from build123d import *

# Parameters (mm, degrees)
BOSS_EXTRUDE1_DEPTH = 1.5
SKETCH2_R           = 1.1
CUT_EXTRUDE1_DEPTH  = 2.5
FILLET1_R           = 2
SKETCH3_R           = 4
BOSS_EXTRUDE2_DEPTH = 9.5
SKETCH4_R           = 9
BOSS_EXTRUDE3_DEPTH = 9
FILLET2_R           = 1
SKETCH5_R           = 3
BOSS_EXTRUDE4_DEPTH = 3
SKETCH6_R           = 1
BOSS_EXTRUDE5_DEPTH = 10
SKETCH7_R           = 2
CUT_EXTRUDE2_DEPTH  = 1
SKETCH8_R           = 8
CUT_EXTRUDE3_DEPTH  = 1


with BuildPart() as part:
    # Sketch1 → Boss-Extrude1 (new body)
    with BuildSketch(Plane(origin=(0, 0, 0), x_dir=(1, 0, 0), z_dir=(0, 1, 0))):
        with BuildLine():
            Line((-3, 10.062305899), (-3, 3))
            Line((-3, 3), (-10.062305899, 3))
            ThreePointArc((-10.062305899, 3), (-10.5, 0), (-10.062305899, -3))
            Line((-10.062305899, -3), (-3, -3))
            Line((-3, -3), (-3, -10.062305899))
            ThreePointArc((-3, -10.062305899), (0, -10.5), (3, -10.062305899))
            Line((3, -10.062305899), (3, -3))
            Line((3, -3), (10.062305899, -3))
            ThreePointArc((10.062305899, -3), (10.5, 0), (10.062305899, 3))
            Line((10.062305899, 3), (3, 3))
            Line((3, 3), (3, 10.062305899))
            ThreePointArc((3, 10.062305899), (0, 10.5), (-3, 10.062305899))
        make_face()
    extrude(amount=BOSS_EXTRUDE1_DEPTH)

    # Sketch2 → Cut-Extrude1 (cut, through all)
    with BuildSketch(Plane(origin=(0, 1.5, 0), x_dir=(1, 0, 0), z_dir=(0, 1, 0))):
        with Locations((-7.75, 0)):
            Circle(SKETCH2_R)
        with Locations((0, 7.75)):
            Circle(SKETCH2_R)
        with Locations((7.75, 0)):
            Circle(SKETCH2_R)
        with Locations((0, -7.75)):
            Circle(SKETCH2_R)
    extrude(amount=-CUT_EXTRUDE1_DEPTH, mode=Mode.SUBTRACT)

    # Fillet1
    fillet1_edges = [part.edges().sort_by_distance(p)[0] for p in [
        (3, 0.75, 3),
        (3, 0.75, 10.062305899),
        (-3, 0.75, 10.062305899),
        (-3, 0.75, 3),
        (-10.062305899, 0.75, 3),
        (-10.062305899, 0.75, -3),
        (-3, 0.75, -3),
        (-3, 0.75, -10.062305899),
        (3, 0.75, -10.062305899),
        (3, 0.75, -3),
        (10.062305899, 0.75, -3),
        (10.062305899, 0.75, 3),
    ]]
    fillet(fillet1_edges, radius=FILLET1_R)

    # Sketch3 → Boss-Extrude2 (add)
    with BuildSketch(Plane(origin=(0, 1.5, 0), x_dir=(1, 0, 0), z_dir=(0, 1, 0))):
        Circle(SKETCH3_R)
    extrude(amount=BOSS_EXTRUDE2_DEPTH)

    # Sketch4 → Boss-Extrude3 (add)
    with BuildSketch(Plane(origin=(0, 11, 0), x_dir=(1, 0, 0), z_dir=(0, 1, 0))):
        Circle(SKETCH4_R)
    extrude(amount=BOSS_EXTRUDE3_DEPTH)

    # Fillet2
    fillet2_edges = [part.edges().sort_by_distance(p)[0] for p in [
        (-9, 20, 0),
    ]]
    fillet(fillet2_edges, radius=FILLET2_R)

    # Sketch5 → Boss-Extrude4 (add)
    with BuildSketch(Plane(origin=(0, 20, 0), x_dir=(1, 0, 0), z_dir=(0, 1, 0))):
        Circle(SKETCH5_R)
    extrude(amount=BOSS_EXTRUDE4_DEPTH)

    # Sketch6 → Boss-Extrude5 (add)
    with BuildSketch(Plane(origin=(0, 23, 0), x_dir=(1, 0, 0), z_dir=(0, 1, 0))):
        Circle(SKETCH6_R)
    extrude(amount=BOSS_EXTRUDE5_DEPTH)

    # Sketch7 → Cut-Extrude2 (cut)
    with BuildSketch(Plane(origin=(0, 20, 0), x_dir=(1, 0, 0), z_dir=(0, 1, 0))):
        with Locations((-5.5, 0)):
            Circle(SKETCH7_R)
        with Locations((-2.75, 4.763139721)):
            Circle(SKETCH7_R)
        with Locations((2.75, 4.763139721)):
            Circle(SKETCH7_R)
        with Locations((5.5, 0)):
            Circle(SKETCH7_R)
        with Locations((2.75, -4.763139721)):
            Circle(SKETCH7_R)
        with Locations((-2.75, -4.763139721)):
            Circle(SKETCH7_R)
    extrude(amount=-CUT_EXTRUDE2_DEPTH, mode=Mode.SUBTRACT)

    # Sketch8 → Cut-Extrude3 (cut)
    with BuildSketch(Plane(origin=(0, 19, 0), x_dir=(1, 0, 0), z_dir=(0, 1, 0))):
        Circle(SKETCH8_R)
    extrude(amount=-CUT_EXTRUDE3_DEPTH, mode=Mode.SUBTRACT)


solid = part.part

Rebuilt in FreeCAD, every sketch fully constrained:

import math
import FreeCAD as App
import Part
import Sketcher

V = App.Vector
Q = App.Units.Quantity


def edges_at(feature, points):
    """Names of the edges that pass closest to the given points."""
    edges = feature.Shape.Edges
    near = lambda p: min(range(len(edges)), key=lambda i: edges[i].distToShape(Part.Vertex(*p))[0])
    return sorted({f"Edge{near(p) + 1}" for p in points})

doc = App.newDocument("Part")
body = doc.addObject("PartDesign::Body", "Body")

# Sketch on XZ plane
sketch1 = doc.addObject("Sketcher::SketchObject", "Sketch")
body.addObject(sketch1)
sketch1.AttachmentSupport = (doc.XZ_Plane, [""])
sketch1.MapMode = "FlatFace"
sketch1.addGeometry([
    Part.LineSegment(V(-3, -10, 0), V(-3, -3, 0)),  # 0
    Part.LineSegment(V(-3, -3, 0), V(-10, -3, 0)),  # 1
    Part.ArcOfCircle(Part.Circle(V(0, 0, 0), V(0, 0, 1), 11), math.radians(163), math.radians(197)),  # 2
    Part.LineSegment(V(-10, 3, 0), V(-3, 3, 0)),  # 3
    Part.LineSegment(V(-3, 3, 0), V(-3, 10, 0)),  # 4
    Part.ArcOfCircle(Part.Circle(V(0, 0, 0), V(0, 0, 1), 11), math.radians(73), math.radians(107)),  # 5
    Part.LineSegment(V(3, 10, 0), V(3, 3, 0)),  # 6
    Part.LineSegment(V(3, 3, 0), V(10, 3, 0)),  # 7
    Part.ArcOfCircle(Part.Circle(V(0, 0, 0), V(0, 0, 1), 11), math.radians(-17), math.radians(17)),  # 8
    Part.LineSegment(V(10, -3, 0), V(3, -3, 0)),  # 9
    Part.LineSegment(V(3, -3, 0), V(3, -10, 0)),  # 10
    Part.ArcOfCircle(Part.Circle(V(0, 0, 0), V(0, 0, 1), 11), math.radians(-107), math.radians(-73)),  # 11
], False)
sketch1.addConstraint([
    Sketcher.Constraint("Coincident", 0, 2, 1, 1),
    Sketcher.Constraint("Coincident", 1, 2, 2, 2),
    Sketcher.Constraint("Coincident", 2, 1, 3, 1),
    Sketcher.Constraint("Coincident", 3, 2, 4, 1),
    Sketcher.Constraint("Coincident", 4, 2, 5, 2),
    Sketcher.Constraint("Coincident", 5, 1, 6, 1),
    Sketcher.Constraint("Coincident", 6, 2, 7, 1),
    Sketcher.Constraint("Coincident", 7, 2, 8, 2),
    Sketcher.Constraint("Coincident", 8, 1, 9, 1),
    Sketcher.Constraint("Coincident", 9, 2, 10, 1),
    Sketcher.Constraint("Coincident", 10, 2, 11, 2),
    Sketcher.Constraint("Coincident", 11, 1, 0, 1),
    Sketcher.Constraint("Vertical", 0),
    Sketcher.Constraint("Horizontal", 1),
    Sketcher.Constraint("Horizontal", 3),
    Sketcher.Constraint("Vertical", 4),
    Sketcher.Constraint("Vertical", 6),
    Sketcher.Constraint("Horizontal", 7),
    Sketcher.Constraint("Horizontal", 9),
    Sketcher.Constraint("Vertical", 10),
    Sketcher.Constraint("Coincident", 2, 3, -1, 1),
    Sketcher.Constraint("Coincident", 5, 3, -1, 1),
    Sketcher.Constraint("Coincident", 8, 3, -1, 1),
    Sketcher.Constraint("Coincident", 11, 3, -1, 1),
    Sketcher.Constraint("Equal", 2, 5),
    Sketcher.Constraint("Equal", 5, 8),
    Sketcher.Constraint("Equal", 8, 11),
    Sketcher.Constraint("Symmetric", 0, 2, 6, 2, -1, 1),
    Sketcher.Constraint("Symmetric", 3, 2, 9, 2, -1, 1),
    Sketcher.Constraint("Symmetric", 3, 2, 6, 2, -2),
    Sketcher.Constraint("Equal", 9, 0),
    Sketcher.Constraint("Radius", 2, Q("10.5 mm")),
    Sketcher.Constraint("DistanceX", 0, 2, -1, 1, Q("3 mm")),
])
pad1 = doc.addObject("PartDesign::Pad", "Pad")
body.addObject(pad1)
pad1.Profile = sketch1
pad1.Length = 1.5
pad1.Reversed = True

# Sketch on XZ plane
sketch2 = doc.addObject("Sketcher::SketchObject", "Sketch001")
body.addObject(sketch2)
sketch2.AttachmentSupport = (doc.XZ_Plane, [""])
sketch2.MapMode = "FlatFace"
sketch2.AttachmentOffset = App.Placement(V(0, 0, -1.5), App.Rotation())
sketch2.addGeometry([
    Part.Circle(V(-7.8, 0, 0), V(0, 0, 1), 1.1),
    Part.Circle(V(0, -7.8, 0), V(0, 0, 1), 1.1),
    Part.Circle(V(7.8, 0, 0), V(0, 0, 1), 1.1),
    Part.Circle(V(0, 7.8, 0), V(0, 0, 1), 1.1),
], False)
sketch2.addConstraint([
    Sketcher.Constraint("Equal", 0, 1),
    Sketcher.Constraint("Equal", 1, 2),
    Sketcher.Constraint("Equal", 2, 3),
    Sketcher.Constraint("Symmetric", 0, 3, 2, 3, -1, 1),
    Sketcher.Constraint("Symmetric", 1, 3, 3, 3, -1, 1),
    Sketcher.Constraint("PointOnObject", 0, 3, -1),
    Sketcher.Constraint("PointOnObject", 1, 3, -2),
    Sketcher.Constraint("Diameter", 0, Q("2.2 mm")),
    Sketcher.Constraint("DistanceX", 0, 3, 2, 3, Q("15.5 mm")),
    Sketcher.Constraint("DistanceY", 1, 3, 3, 3, Q("15.5 mm")),
])
pocket1 = doc.addObject("PartDesign::Pocket", "Pocket")
body.addObject(pocket1)
pocket1.Profile = sketch2
pocket1.Type = "ThroughAll"
pocket1.Reversed = True
doc.recompute()

fillet = doc.addObject("PartDesign::Fillet", "Fillet")
body.addObject(fillet)
fillet.Base = (pocket1, edges_at(pocket1, [
    (3, 0.75, 3),
    (3, 0.75, 10.062),
    (-3, 0.75, 10.062),
    (-3, 0.75, 3),
    (-10.062, 0.75, 3),
    (-10.062, 0.75, -3),
    (-3, 0.75, -3),
    (-3, 0.75, -10.062),
    (3, 0.75, -10.062),
    (3, 0.75, -3),
    (10.062, 0.75, -3),
    (10.062, 0.75, 3),
]))
fillet.Radius = 2

# Sketch on XZ plane
sketch3 = doc.addObject("Sketcher::SketchObject", "Sketch002")
body.addObject(sketch3)
sketch3.AttachmentSupport = (doc.XZ_Plane, [""])
sketch3.MapMode = "FlatFace"
sketch3.AttachmentOffset = App.Placement(V(0, 0, -1.5), App.Rotation())
sketch3.addGeometry(Part.Circle(V(0, 0, 0), V(0, 0, 1), 4), False)
sketch3.addConstraint([
    Sketcher.Constraint("Coincident", 0, 3, -1, 1),
    Sketcher.Constraint("Diameter", 0, Q("8 mm")),
])
pad2 = doc.addObject("PartDesign::Pad", "Pad001")
body.addObject(pad2)
pad2.Profile = sketch3
pad2.Length = 9.5
pad2.Reversed = True

# Sketch on XZ plane
sketch4 = doc.addObject("Sketcher::SketchObject", "Sketch003")
body.addObject(sketch4)
sketch4.AttachmentSupport = (doc.XZ_Plane, [""])
sketch4.MapMode = "FlatFace"
sketch4.AttachmentOffset = App.Placement(V(0, 0, -11), App.Rotation())
sketch4.addGeometry(Part.Circle(V(0, 0, 0), V(0, 0, 1), 9), False)
sketch4.addConstraint([
    Sketcher.Constraint("Coincident", 0, 3, -1, 1),
    Sketcher.Constraint("Diameter", 0, Q("18 mm")),
])
pad3 = doc.addObject("PartDesign::Pad", "Pad002")
body.addObject(pad3)
pad3.Profile = sketch4
pad3.Length = 9
pad3.Reversed = True
doc.recompute()

fillet2 = doc.addObject("PartDesign::Fillet", "Fillet001")
body.addObject(fillet2)
fillet2.Base = (pad3, edges_at(pad3, [(-9, 20, 0)]))
fillet2.Radius = 1

# Sketch on XZ plane
sketch5 = doc.addObject("Sketcher::SketchObject", "Sketch004")
body.addObject(sketch5)
sketch5.AttachmentSupport = (doc.XZ_Plane, [""])
sketch5.MapMode = "FlatFace"
sketch5.AttachmentOffset = App.Placement(V(0, 0, -20), App.Rotation())
sketch5.addGeometry(Part.Circle(V(0, 0, 0), V(0, 0, 1), 3), False)
sketch5.addConstraint([
    Sketcher.Constraint("Coincident", 0, 3, -1, 1),
    Sketcher.Constraint("Diameter", 0, Q("6 mm")),
])
pad4 = doc.addObject("PartDesign::Pad", "Pad003")
body.addObject(pad4)
pad4.Profile = sketch5
pad4.Length = 3
pad4.Reversed = True

# Sketch on XZ plane
sketch6 = doc.addObject("Sketcher::SketchObject", "Sketch005")
body.addObject(sketch6)
sketch6.AttachmentSupport = (doc.XZ_Plane, [""])
sketch6.MapMode = "FlatFace"
sketch6.AttachmentOffset = App.Placement(V(0, 0, -23), App.Rotation())
sketch6.addGeometry(Part.Circle(V(0, 0, 0), V(0, 0, 1), 1), False)
sketch6.addConstraint([
    Sketcher.Constraint("Coincident", 0, 3, -1, 1),
    Sketcher.Constraint("Diameter", 0, Q("2 mm")),
])
pad5 = doc.addObject("PartDesign::Pad", "Pad004")
body.addObject(pad5)
pad5.Profile = sketch6
pad5.Length = 10
pad5.Reversed = True

# Sketch on XZ plane
sketch7 = doc.addObject("Sketcher::SketchObject", "Sketch006")
body.addObject(sketch7)
sketch7.AttachmentSupport = (doc.XZ_Plane, [""])
sketch7.MapMode = "FlatFace"
sketch7.AttachmentOffset = App.Placement(V(0, 0, -20), App.Rotation())
sketch7.addGeometry([
    Part.Circle(V(-5.5, 0, 0), V(0, 0, 1), 2),  # 0
    Part.Circle(V(-2.8, -4.8, 0), V(0, 0, 1), 2),  # 1
    Part.Circle(V(2.8, -4.8, 0), V(0, 0, 1), 2),  # 2
    Part.Circle(V(5.5, 0, 0), V(0, 0, 1), 2),  # 3
    Part.Circle(V(2.8, 4.8, 0), V(0, 0, 1), 2),  # 4
    Part.Circle(V(-2.8, 4.8, 0), V(0, 0, 1), 2),  # 5
], False)
sketch7.addConstraint([
    Sketcher.Constraint("Equal", 0, 1),
    Sketcher.Constraint("Equal", 1, 2),
    Sketcher.Constraint("Equal", 2, 3),
    Sketcher.Constraint("Equal", 3, 4),
    Sketcher.Constraint("Equal", 4, 5),
    Sketcher.Constraint("Symmetric", 0, 3, 3, 3, -1, 1),
    Sketcher.Constraint("Symmetric", 1, 3, 4, 3, -1, 1),
    Sketcher.Constraint("Symmetric", 2, 3, 5, 3, -1, 1),
    Sketcher.Constraint("Symmetric", 1, 3, 2, 3, -2),
    Sketcher.Constraint("PointOnObject", 0, 3, -1),
    Sketcher.Constraint("Diameter", 0, Q("4 mm")),
    Sketcher.Constraint("DistanceX", 0, 3, 3, 3, Q("11 mm")),
    Sketcher.Constraint("DistanceX", 1, 3, 2, 3, Q("5.5 mm")),
    Sketcher.Constraint("DistanceY", 1, 3, -1, 1, Q("4.76314 mm")),
])
pocket2 = doc.addObject("PartDesign::Pocket", "Pocket001")
body.addObject(pocket2)
pocket2.Profile = sketch7
pocket2.Length = 1
pocket2.Reversed = True

# Sketch on XZ plane
sketch8 = doc.addObject("Sketcher::SketchObject", "Sketch007")
body.addObject(sketch8)
sketch8.AttachmentSupport = (doc.XZ_Plane, [""])
sketch8.MapMode = "FlatFace"
sketch8.AttachmentOffset = App.Placement(V(0, 0, -19), App.Rotation())
sketch8.addGeometry(Part.Circle(V(0, 0, 0), V(0, 0, 1), 8), False)
sketch8.addConstraint([
    Sketcher.Constraint("Coincident", 0, 3, -1, 1),
    Sketcher.Constraint("Diameter", 0, Q("16 mm")),
])
pocket3 = doc.addObject("PartDesign::Pocket", "Pocket002")
body.addObject(pocket3)
pocket3.Profile = sketch8
pocket3.Length = 1
pocket3.Reversed = True

doc.recompute()
